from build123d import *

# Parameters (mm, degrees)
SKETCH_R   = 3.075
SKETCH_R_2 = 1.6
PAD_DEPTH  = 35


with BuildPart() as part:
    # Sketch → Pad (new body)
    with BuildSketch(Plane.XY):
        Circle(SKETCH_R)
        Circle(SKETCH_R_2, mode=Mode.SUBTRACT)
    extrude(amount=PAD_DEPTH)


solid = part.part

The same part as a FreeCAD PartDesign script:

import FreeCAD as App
import Part
import Sketcher

V = App.Vector

doc = App.newDocument("Part")
body = doc.addObject("PartDesign::Body", "Body")

# Sketch on XY plane
sketch1 = body.newObject("Sketcher::SketchObject", "Sketch")
sketch1.AttachmentSupport = (doc.getObject("XY_Plane"), [""])
sketch1.MapMode = "FlatFace"
sketch1.addGeometry(Part.Circle(V(0, 0, 0), V(0, 0, 1), 3.1), False)
sketch1.addGeometry(Part.Circle(V(0, 0, 0), V(0, 0, 1), 1.6), False)
sketch1.addConstraint(Sketcher.Constraint("Coincident", 0, 3, -1, 1))
sketch1.addConstraint(Sketcher.Constraint("Coincident", 1, 3, -1, 1))
sketch1.addConstraint(Sketcher.Constraint("Diameter", 1, 3.2))
sketch1.addConstraint(Sketcher.Constraint("Diameter", 0, 6.15))
pad1 = body.newObject("PartDesign::Pad", "Pad")
pad1.Profile = sketch1
pad1.Length = 35

doc.recompute()
